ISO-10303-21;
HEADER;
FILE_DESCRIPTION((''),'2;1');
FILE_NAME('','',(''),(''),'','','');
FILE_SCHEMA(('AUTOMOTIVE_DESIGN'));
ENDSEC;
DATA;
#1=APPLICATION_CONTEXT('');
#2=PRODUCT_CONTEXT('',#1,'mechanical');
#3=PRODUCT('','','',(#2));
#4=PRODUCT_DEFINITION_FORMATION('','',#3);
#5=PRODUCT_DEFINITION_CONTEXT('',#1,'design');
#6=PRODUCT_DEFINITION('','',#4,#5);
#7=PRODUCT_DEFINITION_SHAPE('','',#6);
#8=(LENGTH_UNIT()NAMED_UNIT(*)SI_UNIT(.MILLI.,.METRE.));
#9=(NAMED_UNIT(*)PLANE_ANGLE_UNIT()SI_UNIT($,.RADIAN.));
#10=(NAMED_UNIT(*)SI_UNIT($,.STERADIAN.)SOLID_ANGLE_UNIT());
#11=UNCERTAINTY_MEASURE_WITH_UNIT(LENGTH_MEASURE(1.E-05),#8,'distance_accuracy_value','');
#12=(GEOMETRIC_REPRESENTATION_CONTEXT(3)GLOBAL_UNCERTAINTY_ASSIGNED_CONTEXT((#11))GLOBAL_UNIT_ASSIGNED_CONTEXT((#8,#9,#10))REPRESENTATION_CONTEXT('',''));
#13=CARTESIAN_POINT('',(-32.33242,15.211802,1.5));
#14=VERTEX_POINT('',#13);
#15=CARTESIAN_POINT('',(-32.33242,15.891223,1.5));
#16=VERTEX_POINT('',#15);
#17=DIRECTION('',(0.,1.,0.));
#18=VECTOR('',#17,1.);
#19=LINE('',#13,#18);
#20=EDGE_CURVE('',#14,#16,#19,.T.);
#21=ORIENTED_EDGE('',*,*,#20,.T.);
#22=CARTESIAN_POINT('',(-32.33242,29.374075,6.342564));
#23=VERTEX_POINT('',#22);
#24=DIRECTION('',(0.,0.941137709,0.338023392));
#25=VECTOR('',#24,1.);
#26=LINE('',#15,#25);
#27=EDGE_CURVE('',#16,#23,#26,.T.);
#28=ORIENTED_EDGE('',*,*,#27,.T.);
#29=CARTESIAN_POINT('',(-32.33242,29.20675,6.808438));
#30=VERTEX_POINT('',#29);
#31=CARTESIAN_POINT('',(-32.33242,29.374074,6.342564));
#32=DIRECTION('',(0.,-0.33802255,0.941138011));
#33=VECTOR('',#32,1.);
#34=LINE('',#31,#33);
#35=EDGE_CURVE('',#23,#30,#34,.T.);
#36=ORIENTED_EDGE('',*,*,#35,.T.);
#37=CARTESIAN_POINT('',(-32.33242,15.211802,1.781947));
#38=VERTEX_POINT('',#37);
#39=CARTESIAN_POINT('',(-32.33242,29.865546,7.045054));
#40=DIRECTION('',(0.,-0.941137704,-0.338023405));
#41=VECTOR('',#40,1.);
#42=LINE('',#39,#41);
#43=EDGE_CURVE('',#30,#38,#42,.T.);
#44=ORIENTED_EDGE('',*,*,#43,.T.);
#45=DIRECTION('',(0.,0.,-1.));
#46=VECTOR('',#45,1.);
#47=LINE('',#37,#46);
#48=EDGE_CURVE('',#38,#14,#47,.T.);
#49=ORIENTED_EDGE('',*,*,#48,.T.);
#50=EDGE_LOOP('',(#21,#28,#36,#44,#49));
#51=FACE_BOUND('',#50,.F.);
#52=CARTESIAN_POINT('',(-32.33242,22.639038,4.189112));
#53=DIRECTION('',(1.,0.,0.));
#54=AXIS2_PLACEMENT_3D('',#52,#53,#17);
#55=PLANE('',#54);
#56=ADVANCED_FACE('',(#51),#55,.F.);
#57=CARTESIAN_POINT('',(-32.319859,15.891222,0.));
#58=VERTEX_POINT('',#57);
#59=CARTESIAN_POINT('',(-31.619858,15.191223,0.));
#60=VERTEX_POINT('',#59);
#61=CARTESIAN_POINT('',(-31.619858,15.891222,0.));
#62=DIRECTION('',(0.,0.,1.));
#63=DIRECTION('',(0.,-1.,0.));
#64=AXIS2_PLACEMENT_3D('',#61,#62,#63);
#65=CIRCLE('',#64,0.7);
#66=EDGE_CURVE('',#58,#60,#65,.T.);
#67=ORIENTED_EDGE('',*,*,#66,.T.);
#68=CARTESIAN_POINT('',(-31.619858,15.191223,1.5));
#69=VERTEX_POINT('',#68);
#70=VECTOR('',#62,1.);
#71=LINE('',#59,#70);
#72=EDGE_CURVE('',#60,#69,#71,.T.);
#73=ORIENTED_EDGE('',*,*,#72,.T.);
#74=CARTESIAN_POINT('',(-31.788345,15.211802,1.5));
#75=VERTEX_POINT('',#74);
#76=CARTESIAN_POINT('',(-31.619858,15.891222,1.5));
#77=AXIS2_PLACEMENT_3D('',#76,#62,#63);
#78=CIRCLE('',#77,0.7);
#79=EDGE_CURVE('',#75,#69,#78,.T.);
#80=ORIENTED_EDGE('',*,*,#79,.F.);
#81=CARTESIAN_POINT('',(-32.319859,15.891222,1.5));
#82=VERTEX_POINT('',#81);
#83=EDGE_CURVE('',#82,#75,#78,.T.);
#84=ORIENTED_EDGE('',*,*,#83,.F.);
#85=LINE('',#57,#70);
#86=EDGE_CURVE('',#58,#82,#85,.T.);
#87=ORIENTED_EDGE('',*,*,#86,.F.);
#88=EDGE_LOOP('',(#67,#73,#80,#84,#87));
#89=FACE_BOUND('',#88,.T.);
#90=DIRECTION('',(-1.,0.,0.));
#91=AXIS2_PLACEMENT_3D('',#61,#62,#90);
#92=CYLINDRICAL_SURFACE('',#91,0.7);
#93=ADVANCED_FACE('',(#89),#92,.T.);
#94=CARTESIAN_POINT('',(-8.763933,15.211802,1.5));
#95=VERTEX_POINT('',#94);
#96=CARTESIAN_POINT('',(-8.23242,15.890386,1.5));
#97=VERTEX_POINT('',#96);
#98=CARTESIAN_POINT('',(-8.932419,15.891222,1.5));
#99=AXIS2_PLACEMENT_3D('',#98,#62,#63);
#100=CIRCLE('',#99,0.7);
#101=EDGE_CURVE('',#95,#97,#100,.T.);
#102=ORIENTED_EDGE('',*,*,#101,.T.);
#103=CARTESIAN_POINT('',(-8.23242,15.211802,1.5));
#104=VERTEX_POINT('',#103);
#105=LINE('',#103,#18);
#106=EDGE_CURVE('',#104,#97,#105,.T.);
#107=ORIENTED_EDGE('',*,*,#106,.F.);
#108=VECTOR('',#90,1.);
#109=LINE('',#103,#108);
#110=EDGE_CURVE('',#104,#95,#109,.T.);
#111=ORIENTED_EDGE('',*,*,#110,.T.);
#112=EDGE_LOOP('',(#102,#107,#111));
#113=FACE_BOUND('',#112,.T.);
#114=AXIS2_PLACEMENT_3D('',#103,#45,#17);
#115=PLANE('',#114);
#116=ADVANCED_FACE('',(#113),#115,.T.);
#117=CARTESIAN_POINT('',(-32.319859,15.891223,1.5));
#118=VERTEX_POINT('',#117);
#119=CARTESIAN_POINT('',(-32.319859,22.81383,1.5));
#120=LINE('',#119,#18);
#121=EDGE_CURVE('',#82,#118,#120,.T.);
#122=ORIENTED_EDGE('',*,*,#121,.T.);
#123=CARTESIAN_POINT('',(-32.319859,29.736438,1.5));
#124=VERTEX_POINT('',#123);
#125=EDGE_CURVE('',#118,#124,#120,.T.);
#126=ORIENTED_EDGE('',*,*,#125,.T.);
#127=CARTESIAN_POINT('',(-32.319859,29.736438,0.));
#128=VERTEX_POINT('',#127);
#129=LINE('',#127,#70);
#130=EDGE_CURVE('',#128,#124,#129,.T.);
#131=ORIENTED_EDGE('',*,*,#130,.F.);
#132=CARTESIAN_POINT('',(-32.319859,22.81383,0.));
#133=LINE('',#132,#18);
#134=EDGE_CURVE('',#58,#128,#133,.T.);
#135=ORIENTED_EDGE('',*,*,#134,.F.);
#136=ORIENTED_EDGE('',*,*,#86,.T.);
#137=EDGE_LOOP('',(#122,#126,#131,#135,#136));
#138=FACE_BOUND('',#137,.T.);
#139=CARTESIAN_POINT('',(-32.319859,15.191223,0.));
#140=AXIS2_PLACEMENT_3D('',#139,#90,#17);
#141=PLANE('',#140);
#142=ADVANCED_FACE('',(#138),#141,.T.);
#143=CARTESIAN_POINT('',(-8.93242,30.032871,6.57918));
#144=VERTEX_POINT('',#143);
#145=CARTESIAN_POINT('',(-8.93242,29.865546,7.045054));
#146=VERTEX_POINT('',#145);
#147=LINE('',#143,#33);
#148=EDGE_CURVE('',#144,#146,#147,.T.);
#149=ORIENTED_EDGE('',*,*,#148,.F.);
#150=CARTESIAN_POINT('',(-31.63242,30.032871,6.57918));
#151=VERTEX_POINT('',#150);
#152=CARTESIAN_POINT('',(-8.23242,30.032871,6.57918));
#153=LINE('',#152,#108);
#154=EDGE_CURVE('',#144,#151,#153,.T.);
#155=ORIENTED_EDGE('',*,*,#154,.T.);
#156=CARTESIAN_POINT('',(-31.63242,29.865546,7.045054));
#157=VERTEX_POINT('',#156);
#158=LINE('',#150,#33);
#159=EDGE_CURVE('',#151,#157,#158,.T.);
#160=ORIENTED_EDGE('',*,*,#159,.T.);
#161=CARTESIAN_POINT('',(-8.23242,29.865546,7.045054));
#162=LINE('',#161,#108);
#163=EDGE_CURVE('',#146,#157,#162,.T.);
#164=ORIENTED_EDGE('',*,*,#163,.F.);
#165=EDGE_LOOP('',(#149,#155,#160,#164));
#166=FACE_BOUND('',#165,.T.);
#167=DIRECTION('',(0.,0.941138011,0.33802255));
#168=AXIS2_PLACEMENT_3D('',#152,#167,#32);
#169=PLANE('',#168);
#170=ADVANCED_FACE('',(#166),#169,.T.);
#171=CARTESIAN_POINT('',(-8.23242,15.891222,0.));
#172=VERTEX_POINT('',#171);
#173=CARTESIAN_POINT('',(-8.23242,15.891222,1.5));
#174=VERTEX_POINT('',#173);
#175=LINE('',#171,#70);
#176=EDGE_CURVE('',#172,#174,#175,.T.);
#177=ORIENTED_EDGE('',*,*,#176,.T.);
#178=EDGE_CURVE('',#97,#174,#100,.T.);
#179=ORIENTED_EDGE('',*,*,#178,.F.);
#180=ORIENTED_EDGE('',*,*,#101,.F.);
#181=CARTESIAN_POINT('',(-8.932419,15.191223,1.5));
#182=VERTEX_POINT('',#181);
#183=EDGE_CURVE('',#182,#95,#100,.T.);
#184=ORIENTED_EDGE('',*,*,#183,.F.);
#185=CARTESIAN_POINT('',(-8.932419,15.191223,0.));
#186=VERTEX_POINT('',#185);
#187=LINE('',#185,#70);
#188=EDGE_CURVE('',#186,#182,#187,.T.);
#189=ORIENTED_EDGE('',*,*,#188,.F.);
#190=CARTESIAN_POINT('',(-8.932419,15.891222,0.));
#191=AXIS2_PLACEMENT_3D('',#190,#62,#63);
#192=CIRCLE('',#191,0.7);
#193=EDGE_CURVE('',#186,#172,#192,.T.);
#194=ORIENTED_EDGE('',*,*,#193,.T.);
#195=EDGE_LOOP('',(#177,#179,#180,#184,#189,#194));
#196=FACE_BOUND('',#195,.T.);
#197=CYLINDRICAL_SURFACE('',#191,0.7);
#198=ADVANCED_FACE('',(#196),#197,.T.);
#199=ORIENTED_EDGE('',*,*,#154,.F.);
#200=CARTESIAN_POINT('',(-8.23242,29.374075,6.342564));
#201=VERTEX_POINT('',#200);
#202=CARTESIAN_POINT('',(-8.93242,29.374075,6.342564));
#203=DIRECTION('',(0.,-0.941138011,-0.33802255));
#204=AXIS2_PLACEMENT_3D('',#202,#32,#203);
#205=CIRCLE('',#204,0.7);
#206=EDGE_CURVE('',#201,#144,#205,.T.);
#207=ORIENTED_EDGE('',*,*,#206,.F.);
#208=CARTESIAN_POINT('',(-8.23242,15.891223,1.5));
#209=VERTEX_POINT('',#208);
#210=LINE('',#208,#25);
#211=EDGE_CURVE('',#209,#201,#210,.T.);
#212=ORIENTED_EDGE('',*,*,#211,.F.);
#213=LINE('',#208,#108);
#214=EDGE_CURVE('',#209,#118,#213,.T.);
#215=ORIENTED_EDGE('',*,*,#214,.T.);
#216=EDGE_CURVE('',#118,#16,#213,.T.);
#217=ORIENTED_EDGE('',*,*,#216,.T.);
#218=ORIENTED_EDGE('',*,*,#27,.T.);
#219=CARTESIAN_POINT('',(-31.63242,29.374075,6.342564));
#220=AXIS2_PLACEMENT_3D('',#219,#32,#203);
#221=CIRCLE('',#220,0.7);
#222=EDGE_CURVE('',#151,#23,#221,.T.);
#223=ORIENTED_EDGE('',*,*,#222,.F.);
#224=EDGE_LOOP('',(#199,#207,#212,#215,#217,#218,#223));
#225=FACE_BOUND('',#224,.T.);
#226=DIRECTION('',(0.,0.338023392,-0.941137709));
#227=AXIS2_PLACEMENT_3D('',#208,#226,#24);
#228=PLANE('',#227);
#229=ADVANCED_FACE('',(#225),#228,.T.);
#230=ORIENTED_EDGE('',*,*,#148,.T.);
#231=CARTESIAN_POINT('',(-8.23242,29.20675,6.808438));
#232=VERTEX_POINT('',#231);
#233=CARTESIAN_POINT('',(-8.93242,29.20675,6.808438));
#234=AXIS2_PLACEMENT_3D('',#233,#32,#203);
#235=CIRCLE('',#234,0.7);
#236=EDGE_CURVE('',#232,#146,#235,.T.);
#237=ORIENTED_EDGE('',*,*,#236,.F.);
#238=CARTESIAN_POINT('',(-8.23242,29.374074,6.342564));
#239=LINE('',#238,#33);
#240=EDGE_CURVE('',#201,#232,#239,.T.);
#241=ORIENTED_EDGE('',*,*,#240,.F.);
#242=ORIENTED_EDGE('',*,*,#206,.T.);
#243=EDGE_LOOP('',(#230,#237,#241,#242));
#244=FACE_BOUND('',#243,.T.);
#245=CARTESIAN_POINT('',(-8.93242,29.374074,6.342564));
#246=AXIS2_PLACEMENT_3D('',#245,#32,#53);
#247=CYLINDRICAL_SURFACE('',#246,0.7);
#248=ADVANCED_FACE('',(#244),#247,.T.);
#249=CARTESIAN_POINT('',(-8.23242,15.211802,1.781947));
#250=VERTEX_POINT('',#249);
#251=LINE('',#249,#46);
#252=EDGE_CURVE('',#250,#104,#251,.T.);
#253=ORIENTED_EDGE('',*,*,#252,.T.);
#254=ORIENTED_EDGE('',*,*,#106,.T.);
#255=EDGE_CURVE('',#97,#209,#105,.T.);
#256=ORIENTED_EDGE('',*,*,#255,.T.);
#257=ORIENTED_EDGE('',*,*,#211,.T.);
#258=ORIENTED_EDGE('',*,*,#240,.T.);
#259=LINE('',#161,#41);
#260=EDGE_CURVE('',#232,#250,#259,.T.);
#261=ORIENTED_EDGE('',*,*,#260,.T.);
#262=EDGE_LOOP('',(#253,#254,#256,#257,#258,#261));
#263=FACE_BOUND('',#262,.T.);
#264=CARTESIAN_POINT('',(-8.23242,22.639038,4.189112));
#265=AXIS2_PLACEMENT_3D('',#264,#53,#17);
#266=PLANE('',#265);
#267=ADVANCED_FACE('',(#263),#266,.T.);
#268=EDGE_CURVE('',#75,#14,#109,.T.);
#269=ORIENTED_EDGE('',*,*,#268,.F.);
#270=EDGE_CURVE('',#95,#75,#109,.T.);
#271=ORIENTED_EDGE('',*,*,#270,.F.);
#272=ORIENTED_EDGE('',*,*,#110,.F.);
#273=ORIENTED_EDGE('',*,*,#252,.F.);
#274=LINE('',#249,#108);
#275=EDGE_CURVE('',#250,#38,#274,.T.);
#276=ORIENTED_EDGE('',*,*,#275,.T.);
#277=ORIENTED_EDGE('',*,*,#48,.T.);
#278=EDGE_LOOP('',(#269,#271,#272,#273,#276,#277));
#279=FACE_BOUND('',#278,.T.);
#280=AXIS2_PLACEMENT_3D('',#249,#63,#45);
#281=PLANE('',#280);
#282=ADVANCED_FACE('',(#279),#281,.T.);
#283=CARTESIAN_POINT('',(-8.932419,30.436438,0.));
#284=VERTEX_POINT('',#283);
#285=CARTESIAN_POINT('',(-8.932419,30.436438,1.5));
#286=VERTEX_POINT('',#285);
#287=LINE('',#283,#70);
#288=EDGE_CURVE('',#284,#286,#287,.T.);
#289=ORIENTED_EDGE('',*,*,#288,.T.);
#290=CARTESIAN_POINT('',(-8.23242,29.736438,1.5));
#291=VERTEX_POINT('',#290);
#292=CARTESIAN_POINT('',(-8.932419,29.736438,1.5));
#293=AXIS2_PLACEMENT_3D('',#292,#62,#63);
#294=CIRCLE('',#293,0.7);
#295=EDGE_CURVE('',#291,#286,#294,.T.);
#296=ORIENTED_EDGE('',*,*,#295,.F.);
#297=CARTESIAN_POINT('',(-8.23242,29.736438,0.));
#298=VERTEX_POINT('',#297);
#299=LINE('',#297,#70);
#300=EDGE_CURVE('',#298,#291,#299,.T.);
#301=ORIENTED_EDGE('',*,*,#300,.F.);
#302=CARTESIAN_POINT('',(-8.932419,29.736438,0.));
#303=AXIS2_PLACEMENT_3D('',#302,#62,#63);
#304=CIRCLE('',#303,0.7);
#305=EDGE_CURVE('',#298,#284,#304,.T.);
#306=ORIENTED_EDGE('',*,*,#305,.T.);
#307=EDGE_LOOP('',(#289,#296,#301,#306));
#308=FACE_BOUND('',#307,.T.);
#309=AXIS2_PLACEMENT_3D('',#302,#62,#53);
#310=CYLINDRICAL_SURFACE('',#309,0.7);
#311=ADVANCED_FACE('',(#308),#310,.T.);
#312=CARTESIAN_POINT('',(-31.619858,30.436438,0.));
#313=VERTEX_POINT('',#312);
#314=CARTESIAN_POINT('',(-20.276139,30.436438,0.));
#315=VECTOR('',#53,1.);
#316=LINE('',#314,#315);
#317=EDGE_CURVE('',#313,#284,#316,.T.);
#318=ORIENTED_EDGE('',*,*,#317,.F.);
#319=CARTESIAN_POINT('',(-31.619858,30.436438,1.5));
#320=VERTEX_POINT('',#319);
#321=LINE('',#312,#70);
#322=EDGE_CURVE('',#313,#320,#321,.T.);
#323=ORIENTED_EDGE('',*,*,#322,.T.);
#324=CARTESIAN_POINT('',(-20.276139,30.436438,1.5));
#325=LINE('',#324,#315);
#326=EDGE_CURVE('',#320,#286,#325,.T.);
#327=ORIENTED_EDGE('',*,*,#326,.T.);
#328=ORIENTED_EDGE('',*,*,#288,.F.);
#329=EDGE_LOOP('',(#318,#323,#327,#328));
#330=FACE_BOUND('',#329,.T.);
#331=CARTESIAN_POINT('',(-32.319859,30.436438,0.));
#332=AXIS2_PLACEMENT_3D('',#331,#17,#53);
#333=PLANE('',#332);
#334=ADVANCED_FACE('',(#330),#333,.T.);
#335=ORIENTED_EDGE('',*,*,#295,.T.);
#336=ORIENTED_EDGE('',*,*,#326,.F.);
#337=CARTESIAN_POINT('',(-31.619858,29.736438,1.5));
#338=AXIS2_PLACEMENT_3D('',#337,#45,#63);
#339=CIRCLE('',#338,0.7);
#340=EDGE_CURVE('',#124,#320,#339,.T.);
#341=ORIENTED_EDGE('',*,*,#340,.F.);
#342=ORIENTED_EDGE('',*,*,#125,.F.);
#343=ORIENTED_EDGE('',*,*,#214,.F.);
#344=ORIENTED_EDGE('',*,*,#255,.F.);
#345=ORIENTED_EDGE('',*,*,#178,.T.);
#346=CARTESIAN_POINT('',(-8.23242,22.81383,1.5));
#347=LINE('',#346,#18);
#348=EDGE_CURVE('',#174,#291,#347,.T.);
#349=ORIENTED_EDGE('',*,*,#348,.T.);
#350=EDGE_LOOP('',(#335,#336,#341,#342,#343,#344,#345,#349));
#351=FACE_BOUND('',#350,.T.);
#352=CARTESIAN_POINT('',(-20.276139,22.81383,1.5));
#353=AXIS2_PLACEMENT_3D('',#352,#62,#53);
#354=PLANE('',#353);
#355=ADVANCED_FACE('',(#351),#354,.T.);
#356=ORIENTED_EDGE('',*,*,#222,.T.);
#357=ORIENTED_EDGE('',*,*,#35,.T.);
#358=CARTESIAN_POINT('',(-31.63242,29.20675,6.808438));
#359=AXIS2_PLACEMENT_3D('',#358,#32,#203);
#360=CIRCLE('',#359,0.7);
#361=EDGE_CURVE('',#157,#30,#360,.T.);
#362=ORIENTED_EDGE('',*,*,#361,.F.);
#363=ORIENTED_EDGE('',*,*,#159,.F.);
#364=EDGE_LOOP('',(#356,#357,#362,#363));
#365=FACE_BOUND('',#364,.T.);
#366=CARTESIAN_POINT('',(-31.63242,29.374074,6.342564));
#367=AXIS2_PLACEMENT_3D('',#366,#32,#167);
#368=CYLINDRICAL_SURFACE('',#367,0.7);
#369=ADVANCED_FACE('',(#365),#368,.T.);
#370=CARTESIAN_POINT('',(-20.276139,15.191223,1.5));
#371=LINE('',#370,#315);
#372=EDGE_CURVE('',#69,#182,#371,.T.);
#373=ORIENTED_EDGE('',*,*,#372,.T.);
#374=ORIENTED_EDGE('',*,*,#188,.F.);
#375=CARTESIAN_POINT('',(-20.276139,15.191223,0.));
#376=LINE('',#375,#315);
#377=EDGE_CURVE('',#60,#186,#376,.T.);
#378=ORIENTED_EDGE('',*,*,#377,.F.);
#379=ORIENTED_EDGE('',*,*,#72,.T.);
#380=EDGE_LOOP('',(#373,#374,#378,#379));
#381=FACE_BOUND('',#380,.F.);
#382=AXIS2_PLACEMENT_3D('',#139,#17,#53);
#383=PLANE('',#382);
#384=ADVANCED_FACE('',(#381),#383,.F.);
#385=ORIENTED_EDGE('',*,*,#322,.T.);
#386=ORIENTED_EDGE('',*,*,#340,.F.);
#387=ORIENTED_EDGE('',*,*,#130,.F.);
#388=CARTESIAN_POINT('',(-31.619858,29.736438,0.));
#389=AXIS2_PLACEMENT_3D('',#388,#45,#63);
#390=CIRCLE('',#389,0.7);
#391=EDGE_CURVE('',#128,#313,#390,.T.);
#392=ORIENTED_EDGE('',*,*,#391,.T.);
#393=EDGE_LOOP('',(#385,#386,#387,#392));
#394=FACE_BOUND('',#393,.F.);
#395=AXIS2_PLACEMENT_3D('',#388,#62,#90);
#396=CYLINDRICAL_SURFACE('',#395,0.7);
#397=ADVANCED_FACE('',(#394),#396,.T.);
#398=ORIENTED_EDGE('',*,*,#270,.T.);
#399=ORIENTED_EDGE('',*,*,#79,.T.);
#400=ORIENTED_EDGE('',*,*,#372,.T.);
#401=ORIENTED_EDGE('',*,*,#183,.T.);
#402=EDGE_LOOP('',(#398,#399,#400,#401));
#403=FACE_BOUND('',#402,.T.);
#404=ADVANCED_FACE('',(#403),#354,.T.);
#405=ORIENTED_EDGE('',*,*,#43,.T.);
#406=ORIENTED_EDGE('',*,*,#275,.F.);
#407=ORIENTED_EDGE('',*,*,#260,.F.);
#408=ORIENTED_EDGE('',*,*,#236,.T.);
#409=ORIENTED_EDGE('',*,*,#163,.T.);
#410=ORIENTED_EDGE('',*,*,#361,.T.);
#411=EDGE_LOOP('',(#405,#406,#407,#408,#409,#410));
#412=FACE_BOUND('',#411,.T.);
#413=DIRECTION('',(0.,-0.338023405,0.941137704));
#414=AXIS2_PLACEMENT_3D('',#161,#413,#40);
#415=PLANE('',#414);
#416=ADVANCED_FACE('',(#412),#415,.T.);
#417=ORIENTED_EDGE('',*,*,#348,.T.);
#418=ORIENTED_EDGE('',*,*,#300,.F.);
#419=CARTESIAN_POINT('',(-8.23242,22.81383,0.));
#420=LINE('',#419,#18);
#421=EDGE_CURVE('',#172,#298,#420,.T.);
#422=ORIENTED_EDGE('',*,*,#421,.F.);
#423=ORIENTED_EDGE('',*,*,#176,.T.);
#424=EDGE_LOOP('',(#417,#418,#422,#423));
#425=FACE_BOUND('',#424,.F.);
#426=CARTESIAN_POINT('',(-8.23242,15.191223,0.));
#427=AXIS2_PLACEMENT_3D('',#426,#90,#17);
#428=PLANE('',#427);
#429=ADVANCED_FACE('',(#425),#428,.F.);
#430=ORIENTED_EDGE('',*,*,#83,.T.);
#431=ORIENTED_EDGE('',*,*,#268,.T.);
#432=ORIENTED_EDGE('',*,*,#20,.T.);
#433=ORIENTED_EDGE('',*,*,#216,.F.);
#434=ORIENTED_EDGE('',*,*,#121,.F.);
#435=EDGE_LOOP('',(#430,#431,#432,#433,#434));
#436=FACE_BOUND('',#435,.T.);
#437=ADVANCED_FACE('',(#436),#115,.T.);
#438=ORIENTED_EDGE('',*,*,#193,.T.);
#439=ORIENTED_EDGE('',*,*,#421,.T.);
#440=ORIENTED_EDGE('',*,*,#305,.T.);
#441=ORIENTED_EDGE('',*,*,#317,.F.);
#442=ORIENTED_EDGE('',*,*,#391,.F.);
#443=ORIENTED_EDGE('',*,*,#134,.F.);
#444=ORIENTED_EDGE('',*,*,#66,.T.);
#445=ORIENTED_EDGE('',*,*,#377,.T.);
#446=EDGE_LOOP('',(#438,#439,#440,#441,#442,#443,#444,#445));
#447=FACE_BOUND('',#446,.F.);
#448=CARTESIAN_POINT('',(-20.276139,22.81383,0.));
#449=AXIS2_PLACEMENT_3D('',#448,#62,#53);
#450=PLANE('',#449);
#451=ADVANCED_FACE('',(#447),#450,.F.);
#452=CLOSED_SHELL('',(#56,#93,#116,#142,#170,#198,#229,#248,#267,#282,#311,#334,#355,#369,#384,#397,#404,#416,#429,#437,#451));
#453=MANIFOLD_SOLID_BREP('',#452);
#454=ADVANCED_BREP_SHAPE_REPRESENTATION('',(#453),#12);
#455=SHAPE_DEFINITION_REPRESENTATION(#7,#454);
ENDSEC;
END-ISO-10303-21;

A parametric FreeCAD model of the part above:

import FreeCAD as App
import Part
import Sketcher
from FreeCAD import Vector


def edges_at(feature, points):
    """Names of the edges that pass closest to the given points."""
    edges = feature.Shape.Edges
    near = lambda p: min(range(len(edges)), key=lambda i: edges[i].distToShape(Part.Vertex(*p))[0])
    return sorted({f"Edge{near(p) + 1}" for p in points})

doc = App.newDocument("Part")
body = doc.addObject("PartDesign::Body", "Body")

# Sketch on XY plane
sketch1 = body.newObject("Sketcher::SketchObject", "Sketch")
sketch1.AttachmentSupport = (doc.getObject("XY_Plane"), [""])
sketch1.MapMode = "FlatFace"
sketch1.addGeometry([
    Part.LineSegment(Vector(-32, 30, 0), Vector(-32, 15, 0)),
    Part.LineSegment(Vector(-32, 15, 0), Vector(-8, 15, 0)),
    Part.LineSegment(Vector(-8, 15, 0), Vector(-8, 30, 0)),
    Part.LineSegment(Vector(-8, 30, 0), Vector(-32, 30, 0)),
], False)
sketch1.addConstraint([
    Sketcher.Constraint("Coincident", 0, 2, 1, 1),
    Sketcher.Constraint("Coincident", 1, 2, 2, 1),
    Sketcher.Constraint("Coincident", 2, 2, 3, 1),
    Sketcher.Constraint("Coincident", 3, 2, 0, 1),
    Sketcher.Constraint("Vertical", 0),
    Sketcher.Constraint("Horizontal", 1),
    Sketcher.Constraint("Vertical", 2),
    Sketcher.Constraint("Horizontal", 3),
    Sketcher.Constraint("DistanceX", 1, 1, 1, 2, 24.087439),
    Sketcher.Constraint("DistanceY", 0, 2, 0, 1, 15.245215),
    Sketcher.Constraint("DistanceX", 0, 2, -1, 1, 32.319859),
    Sketcher.Constraint("DistanceY", -1, 1, 0, 2, 15.191223),
])
pad1 = body.newObject("PartDesign::Pad", "Pad")
pad1.Profile = sketch1
pad1.Length = 1.5
doc.recompute()

fillet = body.newObject("PartDesign::Fillet", "Fillet")
fillet.Base = (pad1, edges_at(pad1, [
    (-32.32, 30.436, 0.75),
    (-32.32, 15.191, 0.75),
    (-8.232, 30.436, 0.75),
    (-8.232, 15.191, 0.75),
]))
fillet.Radius = 0.7

# Sketch on YZ plane
sketch2 = body.newObject("Sketcher::SketchObject", "Sketch001")
sketch2.AttachmentSupport = (doc.getObject("YZ_Plane"), [""])
sketch2.MapMode = "FlatFace"
sketch2.AttachmentOffset = App.Placement(Vector(0, 0, -8.23242), App.Rotation())
sketch2.addGeometry([
    Part.LineSegment(Vector(15.21, 1.5, 0), Vector(15.89, 1.5, 0)),  # 0
    Part.LineSegment(Vector(15.89, 1.5, 0), Vector(30.03, 6.58, 0)),  # 1
    Part.LineSegment(Vector(30.03, 6.58, 0), Vector(29.87, 7.05, 0)),  # 2
    Part.LineSegment(Vector(29.87, 7.05, 0), Vector(15.21, 1.78, 0)),  # 3
    Part.LineSegment(Vector(15.21, 1.78, 0), Vector(15.21, 1.5, 0)),  # 4
], False)
sketch2.addConstraint([
    Sketcher.Constraint("Coincident", 0, 2, 1, 1),
    Sketcher.Constraint("Coincident", 1, 2, 2, 1),
    Sketcher.Constraint("Coincident", 2, 2, 3, 1),
    Sketcher.Constraint("Coincident", 3, 2, 4, 1),
    Sketcher.Constraint("Coincident", 4, 2, 0, 1),
    Sketcher.Constraint("Horizontal", 0),
    Sketcher.Constraint("Vertical", 4),
    Sketcher.Constraint("Perpendicular", 1, 2),
    Sketcher.Constraint("Perpendicular", 2, 3),
    Sketcher.Constraint("DistanceY", -1, 1, 0, 2, 1.5),
    Sketcher.Constraint("DistanceX", 0, 1, 0, 2, 0.679421),
    Sketcher.Constraint("Distance", 1, 15.02612),
    Sketcher.Constraint("Distance", 2, 0.495011),
    Sketcher.Constraint("DistanceY", 4, 2, 4, 1, 0.281947),
    Sketcher.Constraint("DistanceX", -1, 1, 1, 2, 30.032871),
])
pad2 = body.newObject("PartDesign::Pad", "Pad001")
pad2.Profile = sketch2
pad2.Length = 24.1
pad2.Reversed = True
doc.recompute()

fillet2 = body.newObject("PartDesign::Fillet", "Fillet001")
fillet2.Base = (pad2, edges_at(pad2, [(-32.332, 29.949, 6.812), (-8.232, 29.949, 6.812)]))
fillet2.Radius = 0.7

doc.recompute()
